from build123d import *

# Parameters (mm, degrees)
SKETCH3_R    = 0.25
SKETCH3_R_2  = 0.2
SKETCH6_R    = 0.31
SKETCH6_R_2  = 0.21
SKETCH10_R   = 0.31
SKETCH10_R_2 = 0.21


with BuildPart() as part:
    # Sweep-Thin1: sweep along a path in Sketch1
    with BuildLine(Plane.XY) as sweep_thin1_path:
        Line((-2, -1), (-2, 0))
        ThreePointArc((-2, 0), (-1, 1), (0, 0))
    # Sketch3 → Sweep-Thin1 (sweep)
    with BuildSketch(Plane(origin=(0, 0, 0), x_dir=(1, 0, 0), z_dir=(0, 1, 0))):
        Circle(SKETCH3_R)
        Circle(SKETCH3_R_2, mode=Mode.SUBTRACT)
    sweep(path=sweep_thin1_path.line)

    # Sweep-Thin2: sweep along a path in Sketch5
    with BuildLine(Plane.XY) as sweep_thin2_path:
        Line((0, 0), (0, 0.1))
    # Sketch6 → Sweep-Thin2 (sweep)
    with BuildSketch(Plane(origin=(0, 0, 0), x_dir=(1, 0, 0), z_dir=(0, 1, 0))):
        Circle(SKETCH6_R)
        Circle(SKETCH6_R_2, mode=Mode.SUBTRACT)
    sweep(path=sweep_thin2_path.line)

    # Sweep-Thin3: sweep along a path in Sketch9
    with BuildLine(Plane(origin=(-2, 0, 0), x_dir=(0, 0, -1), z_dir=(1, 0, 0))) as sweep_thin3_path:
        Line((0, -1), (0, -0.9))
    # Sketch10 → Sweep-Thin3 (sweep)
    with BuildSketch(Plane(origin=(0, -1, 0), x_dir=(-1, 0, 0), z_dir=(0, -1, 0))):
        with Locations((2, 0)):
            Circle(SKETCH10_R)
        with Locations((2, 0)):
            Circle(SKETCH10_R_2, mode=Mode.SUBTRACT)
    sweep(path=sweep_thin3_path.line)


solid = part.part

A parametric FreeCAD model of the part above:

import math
import FreeCAD as App
import Part
import Sketcher

V = App.Vector

doc = App.newDocument("Part")
body = doc.addObject("PartDesign::Body", "Body")

# Sketch on XZ plane
sketch1 = body.newObject("Sketcher::SketchObject", "Sketch")
sketch1.AttachmentSupport = (doc.getObject("XZ_Plane"), [""])
sketch1.MapMode = "FlatFace"
sketch1.addGeometry([
    Part.Circle(V(0, 0, 0), V(0, 0, 1), 0.25),
    Part.Circle(V(0, 0, 0), V(0, 0, 1), 0.2),
], False)
sketch1.addConstraint([
    Sketcher.Constraint("Coincident", 0, 3, -1, 1),
    Sketcher.Constraint("Coincident", 1, 3, -1, 1),
    Sketcher.Constraint("Diameter", 0, 0.5),
    Sketcher.Constraint("Diameter", 1, 0.4),
])

# Sketch on XY plane
sketch2 = body.newObject("Sketcher::SketchObject", "Sketch001")
sketch2.AttachmentSupport = (doc.getObject("XY_Plane"), [""])
sketch2.MapMode = "FlatFace"
sketch2.addGeometry([
    Part.LineSegment(V(-2, -1, 0), V(-2, 0, 0)),
    Part.ArcOfCircle(Part.Circle(V(-1, 0, 0), V(0, 0, 1), 1), math.radians(0), math.radians(180)),
], False)
sketch2.addConstraint([
    Sketcher.Constraint("Tangent", 0, 2, 1, 2),
    Sketcher.Constraint("Vertical", 0),
    Sketcher.Constraint("Coincident", 1, 1, -1, 1),
    Sketcher.Constraint("PointOnObject", 1, 3, -1),
    Sketcher.Constraint("Radius", 1, 1.0),
    Sketcher.Constraint("DistanceY", 0, 1, 0, 2, 1.0),
])
doc.recompute()

additivepipe = body.newObject("PartDesign::AdditivePipe", "AdditivePipe")
additivepipe.Profile = sketch1
additivepipe.Spine = (sketch2, ["Edge1", "Edge2"])

# Sketch on XZ plane
sketch3 = body.newObject("Sketcher::SketchObject", "Sketch002")
sketch3.AttachmentSupport = (doc.getObject("XZ_Plane"), [""])
sketch3.MapMode = "FlatFace"
sketch3.addGeometry([
    Part.Circle(V(0, 0, 0), V(0, 0, 1), 0.31),
    Part.Circle(V(0, 0, 0), V(0, 0, 1), 0.21),
], False)
sketch3.addConstraint([
    Sketcher.Constraint("Coincident", 0, 3, -1, 1),
    Sketcher.Constraint("Coincident", 1, 3, -1, 1),
    Sketcher.Constraint("Diameter", 0, 0.62),
    Sketcher.Constraint("Diameter", 1, 0.42),
])

# Sketch on XY plane
sketch4 = body.newObject("Sketcher::SketchObject", "Sketch003")
sketch4.AttachmentSupport = (doc.getObject("XY_Plane"), [""])
sketch4.MapMode = "FlatFace"
sketch4.addGeometry(Part.LineSegment(V(0, 0, 0), V(0, 0.1, 0)), False)
sketch4.addConstraint([
    Sketcher.Constraint("Vertical", 0),
    Sketcher.Constraint("Coincident", 0, 1, -1, 1),
    Sketcher.Constraint("DistanceY", 0, 1, 0, 2, 0.1),
])
doc.recompute()

additivepipe2 = body.newObject("PartDesign::AdditivePipe", "AdditivePipe001")
additivepipe2.Profile = sketch3
additivepipe2.Spine = (sketch4, ["Edge1"])

# Sketch on XZ plane
sketch5 = body.newObject("Sketcher::SketchObject", "Sketch004")
sketch5.AttachmentSupport = (doc.getObject("XZ_Plane"), [""])
sketch5.MapMode = "FlatFace"
sketch5.AttachmentOffset = App.Placement(V(0, 0, 1), App.Rotation())
sketch5.addGeometry([
    Part.Circle(V(-2, 0, 0), V(0, 0, 1), 0.31),
    Part.Circle(V(-2, 0, 0), V(0, 0, 1), 0.21),
], False)
sketch5.addConstraint([
    Sketcher.Constraint("Coincident", 1, 3, 0, 3),
    Sketcher.Constraint("PointOnObject", 0, 3, -1),
    Sketcher.Constraint("Diameter", 0, 0.62),
    Sketcher.Constraint("Diameter", 1, 0.42),
    Sketcher.Constraint("DistanceX", 0, 3, -1, 1, 2.0),
])

# Sketch on XY plane
sketch6 = body.newObject("Sketcher::SketchObject", "Sketch005")
sketch6.AttachmentSupport = (doc.getObject("XY_Plane"), [""])
sketch6.MapMode = "FlatFace"
sketch6.addGeometry(Part.LineSegment(V(-2, -1, 0), V(-2, -0.9, 0)), False)
sketch6.addConstraint([
    Sketcher.Constraint("Vertical", 0),
    Sketcher.Constraint("DistanceY", 0, 1, 0, 2, 0.1),
    Sketcher.Constraint("DistanceX", 0, 1, -1, 1, 2.0),
    Sketcher.Constraint("DistanceY", 0, 1, -1, 1, 1.0),
])
doc.recompute()

additivepipe3 = body.newObject("PartDesign::AdditivePipe", "AdditivePipe002")
additivepipe3.Profile = sketch5
additivepipe3.Spine = (sketch6, ["Edge1"])

doc.recompute()
